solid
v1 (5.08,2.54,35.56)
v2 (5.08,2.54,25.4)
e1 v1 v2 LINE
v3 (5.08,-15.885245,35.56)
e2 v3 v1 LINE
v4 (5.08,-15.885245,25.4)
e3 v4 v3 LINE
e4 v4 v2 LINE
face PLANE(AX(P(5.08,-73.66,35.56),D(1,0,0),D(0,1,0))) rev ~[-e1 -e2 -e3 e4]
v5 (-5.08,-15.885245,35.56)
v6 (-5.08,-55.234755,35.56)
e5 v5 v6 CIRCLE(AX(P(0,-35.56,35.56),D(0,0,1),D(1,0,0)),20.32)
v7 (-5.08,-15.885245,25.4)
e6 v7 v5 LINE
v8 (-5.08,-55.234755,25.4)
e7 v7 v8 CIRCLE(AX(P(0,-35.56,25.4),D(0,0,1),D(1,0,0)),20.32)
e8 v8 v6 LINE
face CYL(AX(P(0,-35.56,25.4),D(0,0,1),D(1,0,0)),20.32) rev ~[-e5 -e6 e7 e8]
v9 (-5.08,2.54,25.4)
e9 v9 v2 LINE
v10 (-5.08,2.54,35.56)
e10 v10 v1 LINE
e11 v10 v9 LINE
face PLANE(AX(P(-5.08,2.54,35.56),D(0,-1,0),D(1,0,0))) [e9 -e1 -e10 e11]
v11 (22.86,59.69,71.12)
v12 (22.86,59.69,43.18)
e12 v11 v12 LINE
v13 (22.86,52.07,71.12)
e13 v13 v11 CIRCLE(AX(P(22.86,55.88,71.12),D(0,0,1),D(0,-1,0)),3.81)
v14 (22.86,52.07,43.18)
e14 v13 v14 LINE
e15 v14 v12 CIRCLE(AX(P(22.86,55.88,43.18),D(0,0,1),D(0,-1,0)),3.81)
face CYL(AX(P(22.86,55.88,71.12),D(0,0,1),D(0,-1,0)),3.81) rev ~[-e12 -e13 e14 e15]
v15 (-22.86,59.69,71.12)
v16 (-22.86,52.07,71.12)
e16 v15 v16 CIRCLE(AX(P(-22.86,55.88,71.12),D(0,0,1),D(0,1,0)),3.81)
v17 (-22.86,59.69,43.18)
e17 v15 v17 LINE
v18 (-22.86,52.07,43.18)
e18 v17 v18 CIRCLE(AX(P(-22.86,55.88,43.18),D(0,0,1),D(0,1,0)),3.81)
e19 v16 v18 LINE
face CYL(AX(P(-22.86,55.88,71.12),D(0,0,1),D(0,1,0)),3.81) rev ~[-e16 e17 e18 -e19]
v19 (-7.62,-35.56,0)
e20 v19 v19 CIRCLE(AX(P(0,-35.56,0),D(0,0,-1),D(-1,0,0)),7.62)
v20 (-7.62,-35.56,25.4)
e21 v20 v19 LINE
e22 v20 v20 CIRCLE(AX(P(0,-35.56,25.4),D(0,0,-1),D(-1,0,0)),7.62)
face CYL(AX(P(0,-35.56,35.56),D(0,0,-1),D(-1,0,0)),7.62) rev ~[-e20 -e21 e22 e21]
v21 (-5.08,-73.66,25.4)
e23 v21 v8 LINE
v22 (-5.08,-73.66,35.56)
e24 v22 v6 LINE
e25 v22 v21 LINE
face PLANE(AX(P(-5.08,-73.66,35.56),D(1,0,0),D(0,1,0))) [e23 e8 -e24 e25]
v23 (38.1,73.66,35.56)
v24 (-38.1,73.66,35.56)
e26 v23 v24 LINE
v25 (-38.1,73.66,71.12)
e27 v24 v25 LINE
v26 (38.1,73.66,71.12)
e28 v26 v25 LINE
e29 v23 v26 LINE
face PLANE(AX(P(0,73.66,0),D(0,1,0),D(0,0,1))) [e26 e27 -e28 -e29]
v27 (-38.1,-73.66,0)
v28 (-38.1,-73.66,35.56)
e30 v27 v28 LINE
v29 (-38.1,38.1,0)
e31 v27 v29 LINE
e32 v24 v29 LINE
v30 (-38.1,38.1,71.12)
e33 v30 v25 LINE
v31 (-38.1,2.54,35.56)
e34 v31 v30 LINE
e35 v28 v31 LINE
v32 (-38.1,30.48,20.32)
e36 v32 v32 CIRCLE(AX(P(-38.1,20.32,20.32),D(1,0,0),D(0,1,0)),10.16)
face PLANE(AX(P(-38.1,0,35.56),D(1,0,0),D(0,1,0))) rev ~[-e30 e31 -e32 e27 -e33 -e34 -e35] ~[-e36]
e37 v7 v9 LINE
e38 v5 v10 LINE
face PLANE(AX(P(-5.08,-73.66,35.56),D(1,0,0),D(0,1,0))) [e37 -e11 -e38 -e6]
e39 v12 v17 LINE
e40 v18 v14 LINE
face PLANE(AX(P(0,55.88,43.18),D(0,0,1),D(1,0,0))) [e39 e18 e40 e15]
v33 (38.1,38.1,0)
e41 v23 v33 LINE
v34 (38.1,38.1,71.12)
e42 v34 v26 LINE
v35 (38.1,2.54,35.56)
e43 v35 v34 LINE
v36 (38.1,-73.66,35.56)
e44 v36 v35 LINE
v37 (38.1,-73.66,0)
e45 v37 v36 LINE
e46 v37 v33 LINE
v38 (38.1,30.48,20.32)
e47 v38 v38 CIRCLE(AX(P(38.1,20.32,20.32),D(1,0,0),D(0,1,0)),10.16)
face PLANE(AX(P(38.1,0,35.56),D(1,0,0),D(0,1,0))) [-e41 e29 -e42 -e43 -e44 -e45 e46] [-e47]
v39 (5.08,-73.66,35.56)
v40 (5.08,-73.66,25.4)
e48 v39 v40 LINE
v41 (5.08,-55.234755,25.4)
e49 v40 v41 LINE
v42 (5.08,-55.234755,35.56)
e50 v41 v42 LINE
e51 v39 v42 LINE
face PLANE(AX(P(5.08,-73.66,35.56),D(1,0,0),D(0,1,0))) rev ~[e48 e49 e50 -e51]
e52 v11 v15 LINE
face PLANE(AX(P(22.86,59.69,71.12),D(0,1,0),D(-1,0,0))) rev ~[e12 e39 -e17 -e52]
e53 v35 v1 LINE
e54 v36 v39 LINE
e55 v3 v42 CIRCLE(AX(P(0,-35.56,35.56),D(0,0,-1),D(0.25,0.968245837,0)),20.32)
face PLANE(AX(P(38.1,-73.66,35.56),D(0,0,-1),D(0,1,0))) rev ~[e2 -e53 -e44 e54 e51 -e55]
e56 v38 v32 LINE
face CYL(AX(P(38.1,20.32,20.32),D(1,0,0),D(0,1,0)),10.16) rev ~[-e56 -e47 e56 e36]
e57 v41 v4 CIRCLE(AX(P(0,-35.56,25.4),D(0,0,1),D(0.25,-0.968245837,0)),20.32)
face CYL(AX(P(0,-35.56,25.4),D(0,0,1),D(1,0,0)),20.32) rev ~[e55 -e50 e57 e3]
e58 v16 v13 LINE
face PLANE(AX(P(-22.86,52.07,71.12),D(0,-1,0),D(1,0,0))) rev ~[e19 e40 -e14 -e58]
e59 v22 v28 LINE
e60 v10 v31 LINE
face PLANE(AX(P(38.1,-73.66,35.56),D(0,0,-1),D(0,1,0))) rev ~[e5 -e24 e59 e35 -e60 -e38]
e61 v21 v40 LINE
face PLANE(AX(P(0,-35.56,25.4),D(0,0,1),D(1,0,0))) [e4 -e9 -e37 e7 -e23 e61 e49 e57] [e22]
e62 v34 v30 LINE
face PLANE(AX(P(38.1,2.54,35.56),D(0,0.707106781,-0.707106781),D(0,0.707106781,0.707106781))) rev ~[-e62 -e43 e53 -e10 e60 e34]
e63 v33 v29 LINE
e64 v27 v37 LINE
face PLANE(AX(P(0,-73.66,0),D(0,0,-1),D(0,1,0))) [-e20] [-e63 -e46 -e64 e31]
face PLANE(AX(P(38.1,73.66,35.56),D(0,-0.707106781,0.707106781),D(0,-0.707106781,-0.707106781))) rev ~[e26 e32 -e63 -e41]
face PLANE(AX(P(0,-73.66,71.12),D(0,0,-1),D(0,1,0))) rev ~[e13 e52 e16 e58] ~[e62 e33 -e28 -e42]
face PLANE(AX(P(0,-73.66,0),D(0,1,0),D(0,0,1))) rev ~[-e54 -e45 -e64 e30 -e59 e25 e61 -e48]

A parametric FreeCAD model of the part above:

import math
import FreeCAD as App
import Part
import Sketcher
from FreeCAD import Vector
Q = App.Units.Quantity

doc = App.newDocument("Part")
body = doc.addObject("PartDesign::Body", "Body")

sketch1 = body.newObject("Sketcher::SketchObject", "Sketch")
sketch1.AttachmentSupport = (doc.getObject("YZ_Plane"), [""])
sketch1.MapMode = "FlatFace"
sketch1.addGeometry(Part.LineSegment(Vector(-74, 71, 0), Vector(-74, 0, 0)), False)
sketch1.addGeometry(Part.LineSegment(Vector(-74, 0, 0), Vector(74, 0, 0)), False)
sketch1.addGeometry(Part.LineSegment(Vector(74, 0, 0), Vector(74, 71, 0)), False)
sketch1.addGeometry(Part.LineSegment(Vector(74, 71, 0), Vector(-74, 71, 0)), False)
sketch1.addConstraint(Sketcher.Constraint("Coincident", 0, 2, 1, 1))
sketch1.addConstraint(Sketcher.Constraint("Coincident", 1, 2, 2, 1))
sketch1.addConstraint(Sketcher.Constraint("Coincident", 2, 2, 3, 1))
sketch1.addConstraint(Sketcher.Constraint("Coincident", 3, 2, 0, 1))
sketch1.addConstraint(Sketcher.Constraint("Vertical", 0))
sketch1.addConstraint(Sketcher.Constraint("Horizontal", 1))
sketch1.addConstraint(Sketcher.Constraint("Vertical", 2))
sketch1.addConstraint(Sketcher.Constraint("Horizontal", 3))
sketch1.addConstraint(Sketcher.Constraint("Symmetric", 0, 2, 1, 2, -1, 1))
sketch1.addConstraint(Sketcher.Constraint("DistanceX", 1, 1, 1, 2, Q("5.8 in")))
sketch1.addConstraint(Sketcher.Constraint("DistanceY", 0, 2, 0, 1, Q("2.8 in")))
pad1 = body.newObject("PartDesign::Pad", "Pad")
pad1.Profile = sketch1
pad1.Length = Q("3 in")
pad1.Midplane = True

sketch2 = body.newObject("Sketcher::SketchObject", "Sketch001")
sketch2.AttachmentSupport = (doc.getObject("YZ_Plane"), [""])
sketch2.MapMode = "FlatFace"
sketch2.AttachmentOffset = App.Placement(Vector(0, 0, 1.5 * 25.4), App.Rotation())
sketch2.addGeometry(Part.LineSegment(Vector(3, 36, 0), Vector(38, 71, 0)), False)
sketch2.addGeometry(Part.LineSegment(Vector(38, 71, 0), Vector(-74, 71, 0)), False)
sketch2.addGeometry(Part.LineSegment(Vector(-74, 71, 0), Vector(-74, 36, 0)), False)
sketch2.addGeometry(Part.LineSegment(Vector(-74, 36, 0), Vector(3, 36, 0)), False)
sketch2.addGeometry(Part.LineSegment(Vector(74, 36, 0), Vector(38, 0, 0)), False)
sketch2.addGeometry(Part.LineSegment(Vector(38, 0, 0), Vector(74, 0, 0)), False)
sketch2.addGeometry(Part.LineSegment(Vector(74, 0, 0), Vector(74, 36, 0)), False)
sketch2.addConstraint(Sketcher.Constraint("Coincident", 0, 2, 1, 1))
sketch2.addConstraint(Sketcher.Constraint("Coincident", 1, 2, 2, 1))
sketch2.addConstraint(Sketcher.Constraint("Coincident", 2, 2, 3, 1))
sketch2.addConstraint(Sketcher.Constraint("Coincident", 3, 2, 0, 1))
sketch2.addConstraint(Sketcher.Constraint("Coincident", 4, 2, 5, 1))
sketch2.addConstraint(Sketcher.Constraint("Coincident", 5, 2, 6, 1))
sketch2.addConstraint(Sketcher.Constraint("Coincident", 6, 2, 4, 1))
sketch2.addConstraint(Sketcher.Constraint("Horizontal", 1))
sketch2.addConstraint(Sketcher.Constraint("Vertical", 2))
sketch2.addConstraint(Sketcher.Constraint("Horizontal", 3))
sketch2.addConstraint(Sketcher.Constraint("Horizontal", 5))
sketch2.addConstraint(Sketcher.Constraint("Vertical", 6))
sketch2.addConstraint(Sketcher.Constraint("Symmetric", 2, 2, 6, 2, -2))
sketch2.addConstraint(Sketcher.Constraint("PointOnObject", 4, 2, -1))
sketch2.addConstraint(Sketcher.Constraint("Parallel", 0, 4))
sketch2.addConstraint(Sketcher.Constraint("Vertical", 0, 2, 4, 2))
sketch2.addConstraint(Sketcher.Constraint("Equal", 5, 2))
sketch2.addConstraint(Sketcher.Constraint("Equal", 2, 6))
sketch2.addConstraint(Sketcher.Constraint("DistanceX", 3, 1, 3, 2, Q("3 in")))
sketch2.addConstraint(Sketcher.Constraint("DistanceX", 1, 2, 1, 1, Q("4.4 in")))
pocket1 = body.newObject("PartDesign::Pocket", "Pocket")
pocket1.Profile = sketch2
pocket1.Type = "ThroughAll"

sketch3 = body.newObject("Sketcher::SketchObject", "Sketch002")
sketch3.AttachmentSupport = (doc.getObject("YZ_Plane"), [""])
sketch3.MapMode = "FlatFace"
sketch3.AttachmentOffset = App.Placement(Vector(0, 0, 1.5 * 25.4), App.Rotation())
sketch3.addGeometry(Part.Circle(Vector(20, 20, 0), Vector(0, 0, 1), 10), False)
sketch3.addConstraint(Sketcher.Constraint("Diameter", 0, Q("0.8 in")))
sketch3.addConstraint(Sketcher.Constraint("DistanceX", -1, 1, 0, 3, Q("0.8 in")))
sketch3.addConstraint(Sketcher.Constraint("DistanceY", -1, 1, 0, 3, Q("0.8 in")))
pocket2 = body.newObject("PartDesign::Pocket", "Pocket001")
pocket2.Profile = sketch3
pocket2.Type = "ThroughAll"

sketch4 = body.newObject("Sketcher::SketchObject", "Sketch003")
sketch4.AttachmentSupport = (doc.getObject("XY_Plane"), [""])
sketch4.MapMode = "FlatFace"
sketch4.AttachmentOffset = App.Placement(Vector(0, 0, 1.4 * 25.4), App.Rotation())
sketch4.addGeometry(Part.LineSegment(Vector(-5, 3, 0), Vector(-5, -74, 0)), False)
sketch4.addGeometry(Part.LineSegment(Vector(-5, -74, 0), Vector(5, -74, 0)), False)
sketch4.addGeometry(Part.LineSegment(Vector(5, -74, 0), Vector(5, 3, 0)), False)
sketch4.addGeometry(Part.LineSegment(Vector(5, 3, 0), Vector(-5, 3, 0)), False)
sketch4.addConstraint(Sketcher.Constraint("Coincident", 0, 2, 1, 1))
sketch4.addConstraint(Sketcher.Constraint("Coincident", 1, 2, 2, 1))
sketch4.addConstraint(Sketcher.Constraint("Coincident", 2, 2, 3, 1))
sketch4.addConstraint(Sketcher.Constraint("Coincident", 3, 2, 0, 1))
sketch4.addConstraint(Sketcher.Constraint("Vertical", 0))
sketch4.addConstraint(Sketcher.Constraint("Horizontal", 1))
sketch4.addConstraint(Sketcher.Constraint("Vertical", 2))
sketch4.addConstraint(Sketcher.Constraint("Horizontal", 3))
sketch4.addConstraint(Sketcher.Constraint("DistanceY", 0, 2, 0, 1, Q("3 in")))
sketch4.addConstraint(Sketcher.Constraint("DistanceX", 1, 1, 1, 2, Q("0.4 in")))
sketch4.addConstraint(Sketcher.Constraint("DistanceX", 0, 2, -1, 1, Q("0.2 in")))
sketch4.addConstraint(Sketcher.Constraint("DistanceY", 0, 2, -1, 1, Q("2.9 in")))
pocket3 = body.newObject("PartDesign::Pocket", "Pocket002")
pocket3.Profile = sketch4
pocket3.Length = Q("0.4 in")

sketch5 = body.newObject("Sketcher::SketchObject", "Sketch004")
sketch5.AttachmentSupport = (doc.getObject("XY_Plane"), [""])
sketch5.MapMode = "FlatFace"
sketch5.AttachmentOffset = App.Placement(Vector(0, 0, 1.4 * 25.4), App.Rotation())
sketch5.addGeometry(Part.Circle(Vector(0, -36, 0), Vector(0, 0, 1), 8), False)
sketch5.addConstraint(Sketcher.Constraint("PointOnObject", 0, 3, -2))
sketch5.addConstraint(Sketcher.Constraint("Diameter", 0, Q("0.6 in")))
sketch5.addConstraint(Sketcher.Constraint("DistanceY", 0, 3, -1, 1, Q("1.4 in")))
doc.recompute()
hole = body.newObject("PartDesign::Hole", "Hole")
hole.Profile = sketch5
hole.ThreadType = "None"
hole.Diameter = Q("0.6 in")
hole.DepthType = "ThroughAll"
hole.HoleCutType = "Counterbore"
hole.HoleCutDiameter = Q("1.6 in")
hole.HoleCutDepth = Q("0.4 in")

sketch6 = body.newObject("Sketcher::SketchObject", "Sketch005")
sketch6.AttachmentSupport = (doc.getObject("XY_Plane"), [""])
sketch6.MapMode = "FlatFace"
sketch6.AttachmentOffset = App.Placement(Vector(0, 0, 2.8 * 25.4), App.Rotation())
sketch6.addGeometry(Part.LineSegment(Vector(22.9, 59.7, 0), Vector(-22.9, 59.7, 0)), False)
sketch6.addGeometry(Part.ArcOfCircle(Part.Circle(Vector(-22.9, 55.9, 0), Vector(0, 0, 1), 3.8), math.radians(90), math.radians(270)), False)
sketch6.addGeometry(Part.LineSegment(Vector(-22.9, 52.1, 0), Vector(22.9, 52.1, 0)), False)
sketch6.addGeometry(Part.ArcOfCircle(Part.Circle(Vector(22.9, 55.9, 0), Vector(0, 0, 1), 3.8), math.radians(-90), math.radians(90)), False)
sketch6.addConstraint(Sketcher.Constraint("Tangent", 0, 2, 1, 1))
sketch6.addConstraint(Sketcher.Constraint("Tangent", 1, 2, 2, 1))
sketch6.addConstraint(Sketcher.Constraint("Tangent", 2, 2, 3, 1))
sketch6.addConstraint(Sketcher.Constraint("Tangent", 3, 2, 0, 1))
sketch6.addConstraint(Sketcher.Constraint("Horizontal", 0))
sketch6.addConstraint(Sketcher.Constraint("Horizontal", 2))
sketch6.addConstraint(Sketcher.Constraint("Radius", 1, Q("0.15 in")))
sketch6.addConstraint(Sketcher.Constraint("DistanceX", 0, 2, 0, 1, Q("1.8 in")))
sketch6.addConstraint(Sketcher.Constraint("DistanceX", 1, 3, -1, 1, Q("0.9 in")))
sketch6.addConstraint(Sketcher.Constraint("DistanceY", -1, 1, 1, 3, Q("2.2 in")))
pocket4 = body.newObject("PartDesign::Pocket", "Pocket003")
pocket4.Profile = sketch6
pocket4.Length = Q("1.1 in")

doc.recompute()
